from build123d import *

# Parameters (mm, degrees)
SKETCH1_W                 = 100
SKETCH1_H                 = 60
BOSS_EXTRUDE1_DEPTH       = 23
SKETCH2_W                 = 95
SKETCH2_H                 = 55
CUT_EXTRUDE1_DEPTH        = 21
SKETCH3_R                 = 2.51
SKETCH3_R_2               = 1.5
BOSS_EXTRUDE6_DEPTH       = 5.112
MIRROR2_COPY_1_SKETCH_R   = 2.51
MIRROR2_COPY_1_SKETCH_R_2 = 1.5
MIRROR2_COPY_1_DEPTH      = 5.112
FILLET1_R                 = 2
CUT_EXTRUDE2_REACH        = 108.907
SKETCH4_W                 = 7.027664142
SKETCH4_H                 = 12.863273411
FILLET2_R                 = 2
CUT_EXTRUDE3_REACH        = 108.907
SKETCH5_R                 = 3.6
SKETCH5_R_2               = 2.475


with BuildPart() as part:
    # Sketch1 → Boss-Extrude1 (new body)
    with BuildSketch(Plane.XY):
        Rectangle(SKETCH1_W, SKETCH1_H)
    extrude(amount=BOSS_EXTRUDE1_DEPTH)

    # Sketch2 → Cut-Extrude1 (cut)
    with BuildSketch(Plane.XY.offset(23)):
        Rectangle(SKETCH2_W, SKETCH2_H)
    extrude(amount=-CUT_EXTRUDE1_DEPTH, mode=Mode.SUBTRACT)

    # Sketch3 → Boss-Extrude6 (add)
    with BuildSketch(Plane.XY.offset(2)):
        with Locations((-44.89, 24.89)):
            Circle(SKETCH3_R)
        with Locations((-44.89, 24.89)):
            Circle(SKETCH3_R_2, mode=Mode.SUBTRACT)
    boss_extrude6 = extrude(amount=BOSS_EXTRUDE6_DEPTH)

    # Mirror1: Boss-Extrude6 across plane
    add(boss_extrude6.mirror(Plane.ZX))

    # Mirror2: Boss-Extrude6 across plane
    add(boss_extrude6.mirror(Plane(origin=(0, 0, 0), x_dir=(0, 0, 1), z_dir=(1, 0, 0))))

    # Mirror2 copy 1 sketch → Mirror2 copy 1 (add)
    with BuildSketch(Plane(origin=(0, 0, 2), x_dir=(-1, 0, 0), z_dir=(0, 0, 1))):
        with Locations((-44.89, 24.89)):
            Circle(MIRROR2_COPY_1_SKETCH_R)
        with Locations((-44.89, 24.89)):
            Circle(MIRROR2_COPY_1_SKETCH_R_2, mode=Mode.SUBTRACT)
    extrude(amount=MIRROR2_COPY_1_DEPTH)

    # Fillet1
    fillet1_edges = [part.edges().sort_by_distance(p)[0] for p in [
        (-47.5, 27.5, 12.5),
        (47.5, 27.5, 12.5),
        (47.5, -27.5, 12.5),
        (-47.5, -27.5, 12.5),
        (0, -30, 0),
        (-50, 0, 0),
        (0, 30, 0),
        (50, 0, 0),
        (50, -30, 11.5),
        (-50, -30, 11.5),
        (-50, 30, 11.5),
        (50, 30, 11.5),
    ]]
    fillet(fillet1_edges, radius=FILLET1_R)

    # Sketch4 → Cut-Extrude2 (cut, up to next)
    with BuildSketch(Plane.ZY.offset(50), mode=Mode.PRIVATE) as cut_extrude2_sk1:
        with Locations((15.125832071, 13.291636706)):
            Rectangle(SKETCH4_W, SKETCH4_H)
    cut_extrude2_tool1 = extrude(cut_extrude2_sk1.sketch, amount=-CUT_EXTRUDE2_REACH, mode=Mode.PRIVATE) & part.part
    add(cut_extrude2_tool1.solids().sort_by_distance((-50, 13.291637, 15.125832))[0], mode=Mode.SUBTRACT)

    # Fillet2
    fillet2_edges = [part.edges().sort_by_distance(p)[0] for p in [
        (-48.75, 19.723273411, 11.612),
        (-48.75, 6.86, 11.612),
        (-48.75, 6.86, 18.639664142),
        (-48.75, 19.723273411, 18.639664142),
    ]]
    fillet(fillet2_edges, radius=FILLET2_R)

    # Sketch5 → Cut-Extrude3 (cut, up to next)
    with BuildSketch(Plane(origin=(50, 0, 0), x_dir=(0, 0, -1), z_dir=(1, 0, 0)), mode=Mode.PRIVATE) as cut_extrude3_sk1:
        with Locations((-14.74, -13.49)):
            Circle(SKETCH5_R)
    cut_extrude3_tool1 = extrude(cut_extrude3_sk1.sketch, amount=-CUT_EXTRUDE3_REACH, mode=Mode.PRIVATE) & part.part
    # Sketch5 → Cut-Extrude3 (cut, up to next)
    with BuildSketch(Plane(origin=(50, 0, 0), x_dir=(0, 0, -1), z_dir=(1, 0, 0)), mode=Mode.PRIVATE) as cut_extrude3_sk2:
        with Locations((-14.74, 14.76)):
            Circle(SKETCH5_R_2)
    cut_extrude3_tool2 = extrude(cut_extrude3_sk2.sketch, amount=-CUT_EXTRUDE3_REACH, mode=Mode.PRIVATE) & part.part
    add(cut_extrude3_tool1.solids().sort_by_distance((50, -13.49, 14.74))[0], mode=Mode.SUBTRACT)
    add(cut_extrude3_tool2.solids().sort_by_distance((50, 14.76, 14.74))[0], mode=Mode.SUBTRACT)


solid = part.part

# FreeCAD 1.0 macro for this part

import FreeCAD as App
import Part
import Sketcher
from FreeCAD import Vector


def edges_at(feature, points):
    """Names of the edges that pass closest to the given points."""
    edges = feature.Shape.Edges
    near = lambda p: min(range(len(edges)), key=lambda i: edges[i].distToShape(Part.Vertex(*p))[0])
    return sorted({f"Edge{near(p) + 1}" for p in points})

doc = App.newDocument("Part")
body = doc.addObject("PartDesign::Body", "Body")

sketch1 = doc.addObject("Sketcher::SketchObject", "Sketch")
body.addObject(sketch1)
sketch1.AttachmentSupport = (doc.XY_Plane, [""])
sketch1.MapMode = "FlatFace"
sketch1.addGeometry(Part.LineSegment(Vector(-50, 30, 0), Vector(-50, -30, 0)), False)
sketch1.addGeometry(Part.LineSegment(Vector(-50, -30, 0), Vector(50, -30, 0)), False)
sketch1.addGeometry(Part.LineSegment(Vector(50, -30, 0), Vector(50, 30, 0)), False)
sketch1.addGeometry(Part.LineSegment(Vector(50, 30, 0), Vector(-50, 30, 0)), False)
sketch1.addConstraint(Sketcher.Constraint("Coincident", 0, 2, 1, 1))
sketch1.addConstraint(Sketcher.Constraint("Coincident", 1, 2, 2, 1))
sketch1.addConstraint(Sketcher.Constraint("Coincident", 2, 2, 3, 1))
sketch1.addConstraint(Sketcher.Constraint("Coincident", 3, 2, 0, 1))
sketch1.addConstraint(Sketcher.Constraint("Vertical", 0))
sketch1.addConstraint(Sketcher.Constraint("Horizontal", 1))
sketch1.addConstraint(Sketcher.Constraint("Vertical", 2))
sketch1.addConstraint(Sketcher.Constraint("Horizontal", 3))
sketch1.addConstraint(Sketcher.Constraint("Symmetric", 0, 2, 2, 2, -1, 1))
sketch1.addConstraint(Sketcher.Constraint("DistanceX", 1, 1, 1, 2, 100.0))
sketch1.addConstraint(Sketcher.Constraint("DistanceY", 0, 2, 0, 1, 60.0))
pad1 = doc.addObject("PartDesign::Pad", "Pad")
body.addObject(pad1)
pad1.Profile = sketch1
pad1.Length = 23

sketch2 = doc.addObject("Sketcher::SketchObject", "Sketch001")
body.addObject(sketch2)
sketch2.AttachmentSupport = (doc.XY_Plane, [""])
sketch2.MapMode = "FlatFace"
sketch2.AttachmentOffset = App.Placement(Vector(0, 0, 23), App.Rotation())
sketch2.addGeometry(Part.LineSegment(Vector(-48, 28, 0), Vector(-48, -28, 0)), False)
sketch2.addGeometry(Part.LineSegment(Vector(-48, -28, 0), Vector(48, -28, 0)), False)
sketch2.addGeometry(Part.LineSegment(Vector(48, -28, 0), Vector(48, 28, 0)), False)
sketch2.addGeometry(Part.LineSegment(Vector(48, 28, 0), Vector(-48, 28, 0)), False)
sketch2.addConstraint(Sketcher.Constraint("Coincident", 0, 2, 1, 1))
sketch2.addConstraint(Sketcher.Constraint("Coincident", 1, 2, 2, 1))
sketch2.addConstraint(Sketcher.Constraint("Coincident", 2, 2, 3, 1))
sketch2.addConstraint(Sketcher.Constraint("Coincident", 3, 2, 0, 1))
sketch2.addConstraint(Sketcher.Constraint("Vertical", 0))
sketch2.addConstraint(Sketcher.Constraint("Horizontal", 1))
sketch2.addConstraint(Sketcher.Constraint("Vertical", 2))
sketch2.addConstraint(Sketcher.Constraint("Horizontal", 3))
sketch2.addConstraint(Sketcher.Constraint("Symmetric", 0, 2, 2, 2, -1, 1))
sketch2.addConstraint(Sketcher.Constraint("DistanceX", 1, 1, 1, 2, 95.0))
sketch2.addConstraint(Sketcher.Constraint("DistanceY", 0, 2, 0, 1, 55.0))
pocket1 = doc.addObject("PartDesign::Pocket", "Pocket")
body.addObject(pocket1)
pocket1.Profile = sketch2
pocket1.Length = 21

sketch3 = doc.addObject("Sketcher::SketchObject", "Sketch002")
body.addObject(sketch3)
sketch3.AttachmentSupport = (doc.XY_Plane, [""])
sketch3.MapMode = "FlatFace"
sketch3.AttachmentOffset = App.Placement(Vector(0, 0, 2), App.Rotation())
sketch3.addGeometry(Part.Circle(Vector(-44.9, 24.9, 0), Vector(0, 0, 1), 2.5), False)
sketch3.addGeometry(Part.Circle(Vector(-44.9, 24.9, 0), Vector(0, 0, 1), 1.5), False)
sketch3.addConstraint(Sketcher.Constraint("Coincident", 1, 3, 0, 3))
sketch3.addConstraint(Sketcher.Constraint("Diameter", 1, 3.0))
sketch3.addConstraint(Sketcher.Constraint("Diameter", 0, 5.02))
sketch3.addConstraint(Sketcher.Constraint("DistanceX", 0, 3, -1, 1, 44.89))
sketch3.addConstraint(Sketcher.Constraint("DistanceY", -1, 1, 0, 3, 24.89))
pad2 = doc.addObject("PartDesign::Pad", "Pad001")
body.addObject(pad2)
pad2.Profile = sketch3
pad2.Length = 5.112
doc.recompute()

mirrored = doc.addObject("PartDesign::Mirrored", "Mirrored")
body.addObject(mirrored)
mirrored.Originals = [pad2]
mirrored.MirrorPlane = (doc.XZ_Plane, [""])
body.Tip = mirrored
doc.recompute()

mirrored2 = doc.addObject("PartDesign::Mirrored", "Mirrored001")
body.addObject(mirrored2)
mirrored2.Originals = [pad2]
mirrored2.MirrorPlane = (doc.YZ_Plane, [""])
body.Tip = mirrored2

sketch4 = doc.addObject("Sketcher::SketchObject", "Sketch003")
body.addObject(sketch4)
sketch4.AttachmentSupport = (doc.XY_Plane, [""])
sketch4.MapMode = "FlatFace"
sketch4.AttachmentOffset = App.Placement(Vector(0, 0, 2), App.Rotation())
sketch4.addGeometry(Part.Circle(Vector(44.9, -24.9, 0), Vector(0, 0, 1), 2.5), False)
sketch4.addGeometry(Part.Circle(Vector(44.9, -24.9, 0), Vector(0, 0, 1), 1.5), False)
sketch4.addConstraint(Sketcher.Constraint("Coincident", 1, 3, 0, 3))
sketch4.addConstraint(Sketcher.Constraint("Diameter", 1, 3.0))
sketch4.addConstraint(Sketcher.Constraint("Diameter", 0, 5.02))
sketch4.addConstraint(Sketcher.Constraint("DistanceX", -1, 1, 0, 3, 44.89))
sketch4.addConstraint(Sketcher.Constraint("DistanceY", 0, 3, -1, 1, 24.89))
pad3 = doc.addObject("PartDesign::Pad", "Pad002")
body.addObject(pad3)
pad3.Profile = sketch4
pad3.Length = 5.112
doc.recompute()

fillet = doc.addObject("PartDesign::Fillet", "Fillet")
body.addObject(fillet)
fillet.Base = (pad3, edges_at(pad3, [
    (-47.5, 27.5, 12.5),
    (47.5, 27.5, 12.5),
    (47.5, -27.5, 12.5),
    (-47.5, -27.5, 12.5),
    (0, -30, 0),
    (-50, 0, 0),
    (0, 30, 0),
    (50, 0, 0),
    (50, -30, 11.5),
    (-50, -30, 11.5),
    (-50, 30, 11.5),
    (50, 30, 11.5),
]))
fillet.Radius = 2

sketch5 = doc.addObject("Sketcher::SketchObject", "Sketch004")
body.addObject(sketch5)
sketch5.AttachmentSupport = (doc.YZ_Plane, [""])
sketch5.MapMode = "FlatFace"
sketch5.AttachmentOffset = App.Placement(Vector(0, 0, -50), App.Rotation())
sketch5.addGeometry(Part.LineSegment(Vector(20, 12, 0), Vector(7, 12, 0)), False)
sketch5.addGeometry(Part.LineSegment(Vector(7, 12, 0), Vector(7, 19, 0)), False)
sketch5.addGeometry(Part.LineSegment(Vector(7, 19, 0), Vector(20, 19, 0)), False)
sketch5.addGeometry(Part.LineSegment(Vector(20, 19, 0), Vector(20, 12, 0)), False)
sketch5.addConstraint(Sketcher.Constraint("Coincident", 0, 2, 1, 1))
sketch5.addConstraint(Sketcher.Constraint("Coincident", 1, 2, 2, 1))
sketch5.addConstraint(Sketcher.Constraint("Coincident", 2, 2, 3, 1))
sketch5.addConstraint(Sketcher.Constraint("Coincident", 3, 2, 0, 1))
sketch5.addConstraint(Sketcher.Constraint("Horizontal", 0))
sketch5.addConstraint(Sketcher.Constraint("Vertical", 1))
sketch5.addConstraint(Sketcher.Constraint("Horizontal", 2))
sketch5.addConstraint(Sketcher.Constraint("Vertical", 3))
sketch5.addConstraint(Sketcher.Constraint("DistanceX", -1, 1, 0, 2, 6.86))
sketch5.addConstraint(Sketcher.Constraint("DistanceY", -1, 1, 0, 2, 11.612))
sketch5.addConstraint(Sketcher.Constraint("DistanceX", 0, 2, 0, 1, 12.863273))
sketch5.addConstraint(Sketcher.Constraint("DistanceY", 1, 1, 1, 2, 7.027664))
pocket2 = doc.addObject("PartDesign::Pocket", "Pocket001")
body.addObject(pocket2)
pocket2.Profile = sketch5
pocket2.Type = "UpToFirst"
pocket2.Reversed = True
doc.recompute()

fillet2 = doc.addObject("PartDesign::Fillet", "Fillet001")
body.addObject(fillet2)
fillet2.Base = (pocket2, edges_at(pocket2, [
    (-48.75, 19.723, 11.612),
    (-48.75, 6.86, 11.612),
    (-48.75, 6.86, 18.64),
    (-48.75, 19.723, 18.64),
]))
fillet2.Radius = 2

sketch6 = doc.addObject("Sketcher::SketchObject", "Sketch005")
body.addObject(sketch6)
sketch6.AttachmentSupport = (doc.YZ_Plane, [""])
sketch6.MapMode = "FlatFace"
sketch6.AttachmentOffset = App.Placement(Vector(0, 0, 50), App.Rotation())
sketch6.addGeometry(Part.Circle(Vector(-13.5, 14.7, 0), Vector(0, 0, 1), 3.6), False)
sketch6.addConstraint(Sketcher.Constraint("Diameter", 0, 7.2))
sketch6.addConstraint(Sketcher.Constraint("DistanceX", 0, 3, -1, 1, 13.49))
sketch6.addConstraint(Sketcher.Constraint("DistanceY", -1, 1, 0, 3, 14.74))
pocket3 = doc.addObject("PartDesign::Pocket", "Pocket002")
body.addObject(pocket3)
pocket3.Profile = sketch6
pocket3.Type = "UpToFirst"

sketch7 = doc.addObject("Sketcher::SketchObject", "Sketch006")
body.addObject(sketch7)
sketch7.AttachmentSupport = (doc.YZ_Plane, [""])
sketch7.MapMode = "FlatFace"
sketch7.AttachmentOffset = App.Placement(Vector(0, 0, 50), App.Rotation())
sketch7.addGeometry(Part.Circle(Vector(14.8, 14.7, 0), Vector(0, 0, 1), 2.5), False)
sketch7.addConstraint(Sketcher.Constraint("Diameter", 0, 4.95))
sketch7.addConstraint(Sketcher.Constraint("DistanceX", -1, 1, 0, 3, 14.76))
sketch7.addConstraint(Sketcher.Constraint("DistanceY", -1, 1, 0, 3, 14.74))
pocket4 = doc.addObject("PartDesign::Pocket", "Pocket003")
body.addObject(pocket4)
pocket4.Profile = sketch7
pocket4.Type = "UpToFirst"

doc.recompute()
